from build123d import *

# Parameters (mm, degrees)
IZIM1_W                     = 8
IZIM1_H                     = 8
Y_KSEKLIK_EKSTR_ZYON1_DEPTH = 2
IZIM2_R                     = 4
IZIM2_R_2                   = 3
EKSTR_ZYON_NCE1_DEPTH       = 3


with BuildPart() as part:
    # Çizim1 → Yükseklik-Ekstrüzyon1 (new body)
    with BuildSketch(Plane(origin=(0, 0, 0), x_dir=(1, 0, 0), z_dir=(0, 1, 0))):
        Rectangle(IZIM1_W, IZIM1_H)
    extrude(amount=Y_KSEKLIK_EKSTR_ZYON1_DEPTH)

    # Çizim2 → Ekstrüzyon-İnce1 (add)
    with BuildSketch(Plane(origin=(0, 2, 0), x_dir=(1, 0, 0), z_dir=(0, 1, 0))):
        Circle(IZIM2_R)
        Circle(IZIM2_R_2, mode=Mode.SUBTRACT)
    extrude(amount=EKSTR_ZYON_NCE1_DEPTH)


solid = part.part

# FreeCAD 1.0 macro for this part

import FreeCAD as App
import Part
import Sketcher
Q = App.Units.Quantity

doc = App.newDocument("Part")
body = doc.addObject("PartDesign::Body", "Body")

# Sketch on XZ plane
sketch1 = body.newObject("Sketcher::SketchObject", "Sketch")
sketch1.AttachmentSupport = (doc.getObject("XZ_Plane"), [""])
sketch1.MapMode = "FlatFace"
sketch1.addGeometry([
    Part.LineSegment(App.Vector(-4, -4, 0), App.Vector(-4, 4, 0)),
    Part.LineSegment(App.Vector(-4, 4, 0), App.Vector(4, 4, 0)),
    Part.LineSegment(App.Vector(4, 4, 0), App.Vector(4, -4, 0)),
    Part.LineSegment(App.Vector(4, -4, 0), App.Vector(-4, -4, 0)),
], False)
sketch1.addConstraint([
    Sketcher.Constraint("Coincident", 0, 2, 1, 1),
    Sketcher.Constraint("Coincident", 1, 2, 2, 1),
    Sketcher.Constraint("Coincident", 2, 2, 3, 1),
    Sketcher.Constraint("Coincident", 3, 2, 0, 1),
    Sketcher.Constraint("Vertical", 0),
    Sketcher.Constraint("Horizontal", 1),
    Sketcher.Constraint("Vertical", 2),
    Sketcher.Constraint("Horizontal", 3),
    Sketcher.Constraint("Symmetric", 0, 2, 2, 2, -1, 1),
    Sketcher.Constraint("Equal", 3, 0),
    Sketcher.Constraint("DistanceX", 1, 1, 1, 2, Q("8 mm")),
])
pad1 = body.newObject("PartDesign::Pad", "Pad")
pad1.Profile = sketch1
pad1.Length = 2
pad1.Reversed = True

# Sketch on XZ plane
sketch2 = body.newObject("Sketcher::SketchObject", "Sketch001")
sketch2.AttachmentSupport = (doc.getObject("XZ_Plane"), [""])
sketch2.MapMode = "FlatFace"
sketch2.AttachmentOffset = App.Placement(App.Vector(0, 0, -2), App.Rotation())
sketch2.addGeometry([
    Part.Circle(App.Vector(0, 0, 0), App.Vector(0, 0, 1), 4),
    Part.Circle(App.Vector(0, 0, 0), App.Vector(0, 0, 1), 3),
], False)
sketch2.addConstraint([
    Sketcher.Constraint("Coincident", 0, 3, -1, 1),
    Sketcher.Constraint("Coincident", 1, 3, -1, 1),
    Sketcher.Constraint("Diameter", 0, Q("8 mm")),
    Sketcher.Constraint("Diameter", 1, Q("6 mm")),
])
pad2 = body.newObject("PartDesign::Pad", "Pad001")
pad2.Profile = sketch2
pad2.Length = 3
pad2.Reversed = True

doc.recompute()
